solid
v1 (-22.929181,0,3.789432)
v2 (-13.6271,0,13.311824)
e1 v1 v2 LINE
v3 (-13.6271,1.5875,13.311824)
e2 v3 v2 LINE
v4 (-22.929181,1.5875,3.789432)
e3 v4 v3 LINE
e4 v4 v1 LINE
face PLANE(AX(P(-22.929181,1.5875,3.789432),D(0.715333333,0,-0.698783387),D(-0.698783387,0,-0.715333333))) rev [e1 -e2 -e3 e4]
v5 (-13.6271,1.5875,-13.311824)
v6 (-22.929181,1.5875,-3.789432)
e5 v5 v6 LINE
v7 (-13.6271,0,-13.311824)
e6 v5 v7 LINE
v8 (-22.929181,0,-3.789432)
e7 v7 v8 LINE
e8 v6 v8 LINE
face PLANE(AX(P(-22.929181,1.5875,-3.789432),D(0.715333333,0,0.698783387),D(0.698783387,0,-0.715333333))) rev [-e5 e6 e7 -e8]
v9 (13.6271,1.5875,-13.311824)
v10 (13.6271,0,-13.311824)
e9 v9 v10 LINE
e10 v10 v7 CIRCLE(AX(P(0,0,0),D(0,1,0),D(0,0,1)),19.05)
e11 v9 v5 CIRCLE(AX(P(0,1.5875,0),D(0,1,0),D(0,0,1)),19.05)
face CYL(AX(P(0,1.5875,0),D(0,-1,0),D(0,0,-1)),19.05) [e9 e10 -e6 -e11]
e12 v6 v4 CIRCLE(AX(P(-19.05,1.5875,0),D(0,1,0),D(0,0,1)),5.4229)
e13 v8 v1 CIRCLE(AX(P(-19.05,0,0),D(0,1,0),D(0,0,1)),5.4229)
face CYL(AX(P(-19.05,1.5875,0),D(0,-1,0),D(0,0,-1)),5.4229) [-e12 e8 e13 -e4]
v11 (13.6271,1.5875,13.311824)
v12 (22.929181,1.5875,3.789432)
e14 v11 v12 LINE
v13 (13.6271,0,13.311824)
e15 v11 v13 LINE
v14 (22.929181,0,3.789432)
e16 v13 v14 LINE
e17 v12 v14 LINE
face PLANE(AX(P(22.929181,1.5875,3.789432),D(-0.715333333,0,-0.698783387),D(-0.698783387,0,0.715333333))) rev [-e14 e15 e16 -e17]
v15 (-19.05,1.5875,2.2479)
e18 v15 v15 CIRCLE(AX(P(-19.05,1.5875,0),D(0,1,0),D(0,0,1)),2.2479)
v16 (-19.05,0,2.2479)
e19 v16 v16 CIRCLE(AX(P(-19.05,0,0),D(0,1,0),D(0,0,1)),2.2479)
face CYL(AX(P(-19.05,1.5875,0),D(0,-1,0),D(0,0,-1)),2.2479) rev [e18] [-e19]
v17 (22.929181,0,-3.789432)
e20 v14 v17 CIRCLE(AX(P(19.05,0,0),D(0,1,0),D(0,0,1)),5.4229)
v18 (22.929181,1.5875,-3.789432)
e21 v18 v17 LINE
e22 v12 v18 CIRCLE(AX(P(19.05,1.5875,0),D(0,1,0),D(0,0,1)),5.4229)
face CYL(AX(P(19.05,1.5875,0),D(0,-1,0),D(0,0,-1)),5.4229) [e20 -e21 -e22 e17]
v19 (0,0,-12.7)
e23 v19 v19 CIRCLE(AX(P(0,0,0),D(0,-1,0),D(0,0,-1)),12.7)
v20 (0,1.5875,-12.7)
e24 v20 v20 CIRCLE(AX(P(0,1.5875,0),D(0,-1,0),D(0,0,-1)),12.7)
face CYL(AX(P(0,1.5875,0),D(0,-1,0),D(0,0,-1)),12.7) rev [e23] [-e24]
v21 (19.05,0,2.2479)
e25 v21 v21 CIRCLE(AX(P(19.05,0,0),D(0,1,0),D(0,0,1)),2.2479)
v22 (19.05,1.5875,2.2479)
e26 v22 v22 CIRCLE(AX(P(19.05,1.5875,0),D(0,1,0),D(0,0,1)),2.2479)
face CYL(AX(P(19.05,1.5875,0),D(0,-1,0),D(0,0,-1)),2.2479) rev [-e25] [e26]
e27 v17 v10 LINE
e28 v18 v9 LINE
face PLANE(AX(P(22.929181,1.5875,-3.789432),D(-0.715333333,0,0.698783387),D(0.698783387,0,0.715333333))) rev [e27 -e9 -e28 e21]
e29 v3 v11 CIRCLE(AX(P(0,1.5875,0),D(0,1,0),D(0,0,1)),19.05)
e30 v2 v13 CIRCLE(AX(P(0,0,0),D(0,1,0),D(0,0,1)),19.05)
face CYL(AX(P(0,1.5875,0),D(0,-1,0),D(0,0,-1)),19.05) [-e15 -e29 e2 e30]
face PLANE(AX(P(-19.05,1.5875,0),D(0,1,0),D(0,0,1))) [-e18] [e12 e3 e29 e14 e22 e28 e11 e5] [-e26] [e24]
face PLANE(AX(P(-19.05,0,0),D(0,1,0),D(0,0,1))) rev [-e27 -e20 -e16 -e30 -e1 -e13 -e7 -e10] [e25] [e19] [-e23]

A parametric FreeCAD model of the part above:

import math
import FreeCAD as App
import Part
import Sketcher
from FreeCAD import Vector
Q = App.Units.Quantity

doc = App.newDocument("Part")
body = doc.addObject("PartDesign::Body", "Body")

# Sketch on XZ plane
sketch1 = doc.addObject("Sketcher::SketchObject", "Sketch")
body.addObject(sketch1)
sketch1.AttachmentSupport = (doc.XZ_Plane, [""])
sketch1.MapMode = "FlatFace"
sketch1.addGeometry([
    Part.LineSegment(Vector(-13.6, -13.3, 0), Vector(-22.9, -3.8, 0)),  # 0
    Part.ArcOfCircle(Part.Circle(Vector(-19.1, 0, 0), Vector(0, 0, 1), 5.4), math.radians(136), math.radians(224)),  # 1
    Part.LineSegment(Vector(-22.9, 3.8, 0), Vector(-13.6, 13.3, 0)),  # 2
    Part.ArcOfCircle(Part.Circle(Vector(0, 0, 0), Vector(0, 0, 1), 19.1), math.radians(44), math.radians(136)),  # 3
    Part.LineSegment(Vector(13.6, 13.3, 0), Vector(22.9, 3.8, 0)),  # 4
    Part.ArcOfCircle(Part.Circle(Vector(19.1, 0, 0), Vector(0, 0, 1), 5.4), math.radians(-44), math.radians(44)),  # 5
    Part.LineSegment(Vector(22.9, -3.8, 0), Vector(13.6, -13.3, 0)),  # 6
    Part.ArcOfCircle(Part.Circle(Vector(0, 0, 0), Vector(0, 0, 1), 19.1), math.radians(-136), math.radians(-44)),  # 7
    Part.Circle(Vector(19.1, 0, 0), Vector(0, 0, 1), 2.2),  # 8
    Part.Circle(Vector(0, 0, 0), Vector(0, 0, 1), 15.7),  # 9
    Part.Circle(Vector(-19.1, 0, 0), Vector(0, 0, 1), 2.2),  # 10
], False)
sketch1.addConstraint([
    Sketcher.Constraint("Tangent", 0, 2, 1, 2),
    Sketcher.Constraint("Tangent", 1, 1, 2, 1),
    Sketcher.Constraint("Tangent", 2, 2, 3, 2),
    Sketcher.Constraint("Tangent", 3, 1, 4, 1),
    Sketcher.Constraint("Tangent", 4, 2, 5, 2),
    Sketcher.Constraint("Tangent", 5, 1, 6, 1),
    Sketcher.Constraint("Tangent", 6, 2, 7, 2),
    Sketcher.Constraint("Tangent", 7, 1, 0, 1),
    Sketcher.Constraint("Coincident", 3, 3, -1, 1),
    Sketcher.Constraint("Coincident", 7, 3, -1, 1),
    Sketcher.Constraint("Coincident", 9, 3, -1, 1),
    Sketcher.Constraint("Coincident", 8, 3, 5, 3),
    Sketcher.Constraint("Coincident", 10, 3, 1, 3),
    Sketcher.Constraint("Equal", 1, 5),
    Sketcher.Constraint("Equal", 3, 7),
    Sketcher.Constraint("Equal", 8, 10),
    Sketcher.Constraint("Symmetric", 1, 3, 5, 3, -1, 1),
    Sketcher.Constraint("PointOnObject", 1, 3, -1),
    Sketcher.Constraint("Radius", 3, Q("0.75 in")),
    Sketcher.Constraint("Diameter", 8, Q("0.177 in")),
    Sketcher.Constraint("Diameter", 9, Q("1.235 in")),
    Sketcher.Constraint("Radius", 1, Q("0.2135 in")),
    Sketcher.Constraint("DistanceX", 1, 3, 5, 3, Q("1.5 in")),
])
pad1 = doc.addObject("PartDesign::Pad", "Pad")
body.addObject(pad1)
pad1.Profile = sketch1
pad1.Length = Q("0.0625 in")
pad1.Reversed = True

# Sketch on XZ plane
sketch2 = doc.addObject("Sketcher::SketchObject", "Sketch001")
body.addObject(sketch2)
sketch2.AttachmentSupport = (doc.XZ_Plane, [""])
sketch2.MapMode = "FlatFace"
sketch2.addGeometry([
    Part.Circle(Vector(0, 0, 0), Vector(0, 0, 1), 16),
    Part.Circle(Vector(0, 0, 0), Vector(0, 0, 1), 13),
], False)
sketch2.addConstraint([
    Sketcher.Constraint("Coincident", 0, 3, -1, 1),
    Sketcher.Constraint("Coincident", 1, 3, -1, 1),
    Sketcher.Constraint("Diameter", 1, Q("1 in")),
    Sketcher.Constraint("Diameter", 0, Q("1.235 in")),
])
pad2 = doc.addObject("PartDesign::Pad", "Pad001")
body.addObject(pad2)
pad2.Profile = sketch2
pad2.Length = Q("0.0625 in")
pad2.Reversed = True

doc.recompute()
